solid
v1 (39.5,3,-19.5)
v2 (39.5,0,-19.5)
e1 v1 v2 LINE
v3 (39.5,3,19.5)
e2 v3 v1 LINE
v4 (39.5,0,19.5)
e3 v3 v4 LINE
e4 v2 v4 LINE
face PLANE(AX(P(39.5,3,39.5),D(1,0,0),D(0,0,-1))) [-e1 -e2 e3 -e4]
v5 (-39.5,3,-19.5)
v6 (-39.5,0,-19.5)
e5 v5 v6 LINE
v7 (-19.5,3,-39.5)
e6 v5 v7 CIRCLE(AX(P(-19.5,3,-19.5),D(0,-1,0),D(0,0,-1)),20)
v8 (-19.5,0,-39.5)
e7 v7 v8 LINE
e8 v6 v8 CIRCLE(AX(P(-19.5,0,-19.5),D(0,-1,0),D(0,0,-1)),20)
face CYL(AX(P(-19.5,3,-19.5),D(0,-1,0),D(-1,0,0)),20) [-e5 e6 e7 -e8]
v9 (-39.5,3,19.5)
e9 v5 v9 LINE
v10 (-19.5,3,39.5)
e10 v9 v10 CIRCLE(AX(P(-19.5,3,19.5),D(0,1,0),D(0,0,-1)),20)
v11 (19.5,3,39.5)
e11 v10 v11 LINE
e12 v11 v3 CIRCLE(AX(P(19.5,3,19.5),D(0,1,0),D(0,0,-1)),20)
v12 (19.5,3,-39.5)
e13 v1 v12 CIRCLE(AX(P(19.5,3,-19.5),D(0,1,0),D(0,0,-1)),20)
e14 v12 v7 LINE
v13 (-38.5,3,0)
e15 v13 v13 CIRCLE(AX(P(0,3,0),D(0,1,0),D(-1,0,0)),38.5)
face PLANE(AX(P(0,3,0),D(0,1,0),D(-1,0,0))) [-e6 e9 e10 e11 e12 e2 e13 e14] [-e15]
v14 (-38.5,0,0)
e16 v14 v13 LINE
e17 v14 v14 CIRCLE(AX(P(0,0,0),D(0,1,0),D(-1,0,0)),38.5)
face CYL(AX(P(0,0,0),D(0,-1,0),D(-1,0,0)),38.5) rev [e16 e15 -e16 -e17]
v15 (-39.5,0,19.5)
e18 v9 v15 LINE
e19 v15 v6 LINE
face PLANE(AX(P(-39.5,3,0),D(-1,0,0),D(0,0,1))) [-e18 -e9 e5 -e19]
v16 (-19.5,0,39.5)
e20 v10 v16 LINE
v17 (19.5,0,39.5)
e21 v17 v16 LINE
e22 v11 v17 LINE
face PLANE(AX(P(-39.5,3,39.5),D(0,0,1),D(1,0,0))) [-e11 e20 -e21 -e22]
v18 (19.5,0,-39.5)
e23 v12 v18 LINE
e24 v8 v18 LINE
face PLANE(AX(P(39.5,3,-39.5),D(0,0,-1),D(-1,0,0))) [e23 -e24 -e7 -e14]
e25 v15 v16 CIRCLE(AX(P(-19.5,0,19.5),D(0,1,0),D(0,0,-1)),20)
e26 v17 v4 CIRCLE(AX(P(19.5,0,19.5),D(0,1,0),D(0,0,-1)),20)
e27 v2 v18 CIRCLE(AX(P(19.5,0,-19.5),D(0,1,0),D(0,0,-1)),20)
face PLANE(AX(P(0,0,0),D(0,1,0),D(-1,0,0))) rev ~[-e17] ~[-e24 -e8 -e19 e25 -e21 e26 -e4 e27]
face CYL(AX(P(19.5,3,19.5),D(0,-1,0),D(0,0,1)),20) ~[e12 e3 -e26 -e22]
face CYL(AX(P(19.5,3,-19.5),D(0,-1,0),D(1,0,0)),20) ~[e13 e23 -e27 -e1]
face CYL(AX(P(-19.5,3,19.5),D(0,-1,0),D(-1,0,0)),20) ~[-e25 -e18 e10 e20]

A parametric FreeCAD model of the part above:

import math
import FreeCAD as App
import Part
import Sketcher
from FreeCAD import Vector


def edges_at(feature, points):
    """Names of the edges that pass closest to the given points."""
    edges = feature.Shape.Edges
    near = lambda p: min(range(len(edges)), key=lambda i: edges[i].distToShape(Part.Vertex(*p))[0])
    return sorted({f"Edge{near(p) + 1}" for p in points})

doc = App.newDocument("Part")
body = doc.addObject("PartDesign::Body", "Body")

# Sketch on XZ plane
sketch1 = doc.addObject("Sketcher::SketchObject", "Sketch")
body.addObject(sketch1)
sketch1.AttachmentSupport = (doc.XZ_Plane, [""])
sketch1.MapMode = "FlatFace"
sketch1.addGeometry(Part.Circle(Vector(0, 0, 0), Vector(0, 0, 1), 39.5), False)
sketch1.addGeometry(Part.Circle(Vector(0, 0, 0), Vector(0, 0, 1), 38.5), False)
sketch1.addConstraint(Sketcher.Constraint("Coincident", 0, 3, -1, 1))
sketch1.addConstraint(Sketcher.Constraint("Coincident", 1, 3, -1, 1))
sketch1.addConstraint(Sketcher.Constraint("Diameter", 0, 79.0))
sketch1.addConstraint(Sketcher.Constraint("Diameter", 1, 77.0))
pad1 = doc.addObject("PartDesign::Pad", "Pad")
body.addObject(pad1)
pad1.Profile = sketch1
pad1.Length = 3
pad1.Reversed = True

# Sketch on XZ plane
sketch2 = doc.addObject("Sketcher::SketchObject", "Sketch001")
body.addObject(sketch2)
sketch2.AttachmentSupport = (doc.XZ_Plane, [""])
sketch2.MapMode = "FlatFace"
sketch2.AttachmentOffset = App.Placement(Vector(0, 0, -3), App.Rotation())
sketch2.addGeometry(Part.LineSegment(Vector(-39.5, 0, 0), Vector(-39.5, 39.5, 0)), False)
sketch2.addGeometry(Part.LineSegment(Vector(-39.5, 39.5, 0), Vector(0, 39.5, 0)), False)
sketch2.addGeometry(Part.ArcOfCircle(Part.Circle(Vector(0, 0, 0), Vector(0, 0, 1), 39.5), math.radians(90), math.radians(180)), False)
sketch2.addGeometry(Part.ArcOfCircle(Part.Circle(Vector(0, 0, 0), Vector(0, 0, 1), 39.5), math.radians(0), math.radians(90)), False)
sketch2.addGeometry(Part.LineSegment(Vector(0, 39.5, 0), Vector(39.5, 39.5, 0)), False)
sketch2.addGeometry(Part.LineSegment(Vector(39.5, 39.5, 0), Vector(39.5, 0, 0)), False)
sketch2.addGeometry(Part.LineSegment(Vector(-39.5, -39.5, 0), Vector(-39.5, 0, 0)), False)
sketch2.addGeometry(Part.ArcOfCircle(Part.Circle(Vector(0, 0, 0), Vector(0, 0, 1), 39.5), math.radians(180), math.radians(270)), False)
sketch2.addGeometry(Part.LineSegment(Vector(0, -39.5, 0), Vector(-39.5, -39.5, 0)), False)
sketch2.addGeometry(Part.ArcOfCircle(Part.Circle(Vector(0, 0, 0), Vector(0, 0, 1), 39.5), math.radians(-90), math.radians(0)), False)
sketch2.addGeometry(Part.LineSegment(Vector(39.5, 0, 0), Vector(39.5, -39.5, 0)), False)
sketch2.addGeometry(Part.LineSegment(Vector(39.5, -39.5, 0), Vector(0, -39.5, 0)), False)
sketch2.addConstraint(Sketcher.Constraint("Coincident", 0, 2, 1, 1))
sketch2.addConstraint(Sketcher.Constraint("Tangent", 1, 2, 2, 1))
sketch2.addConstraint(Sketcher.Constraint("Tangent", 2, 2, 0, 1))
sketch2.addConstraint(Sketcher.Constraint("Tangent", 3, 2, 4, 1))
sketch2.addConstraint(Sketcher.Constraint("Coincident", 4, 2, 5, 1))
sketch2.addConstraint(Sketcher.Constraint("Tangent", 5, 2, 3, 1))
sketch2.addConstraint(Sketcher.Constraint("Tangent", 6, 2, 7, 1))
sketch2.addConstraint(Sketcher.Constraint("Tangent", 7, 2, 8, 1))
sketch2.addConstraint(Sketcher.Constraint("Coincident", 8, 2, 6, 1))
sketch2.addConstraint(Sketcher.Constraint("Tangent", 9, 2, 10, 1))
sketch2.addConstraint(Sketcher.Constraint("Coincident", 10, 2, 11, 1))
sketch2.addConstraint(Sketcher.Constraint("Tangent", 11, 2, 9, 1))
sketch2.addConstraint(Sketcher.Constraint("Vertical", 0))
sketch2.addConstraint(Sketcher.Constraint("Horizontal", 1))
sketch2.addConstraint(Sketcher.Constraint("Horizontal", 4))
sketch2.addConstraint(Sketcher.Constraint("Vertical", 5))
sketch2.addConstraint(Sketcher.Constraint("Vertical", 6))
sketch2.addConstraint(Sketcher.Constraint("Horizontal", 8))
sketch2.addConstraint(Sketcher.Constraint("Vertical", 10))
sketch2.addConstraint(Sketcher.Constraint("Horizontal", 11))
sketch2.addConstraint(Sketcher.Constraint("Coincident", 2, 3, -1, 1))
sketch2.addConstraint(Sketcher.Constraint("Coincident", 3, 3, -1, 1))
sketch2.addConstraint(Sketcher.Constraint("Coincident", 7, 3, -1, 1))
sketch2.addConstraint(Sketcher.Constraint("Coincident", 9, 3, -1, 1))
sketch2.addConstraint(Sketcher.Constraint("Equal", 2, 3))
sketch2.addConstraint(Sketcher.Constraint("Equal", 3, 7))
sketch2.addConstraint(Sketcher.Constraint("Equal", 7, 9))
sketch2.addConstraint(Sketcher.Constraint("Radius", 2, 39.5))
pad2 = doc.addObject("PartDesign::Pad", "Pad001")
body.addObject(pad2)
pad2.Profile = sketch2
pad2.Length = 3
doc.recompute()

fillet = doc.addObject("PartDesign::Fillet", "Fillet")
body.addObject(fillet)
fillet.Base = (pad2, edges_at(pad2, [
    (-39.5, 1.5, -39.5),
    (39.5, 1.5, -39.5),
    (39.5, 1.5, 39.5),
    (-39.5, 1.5, 39.5),
]))
fillet.Radius = 20

doc.recompute()
